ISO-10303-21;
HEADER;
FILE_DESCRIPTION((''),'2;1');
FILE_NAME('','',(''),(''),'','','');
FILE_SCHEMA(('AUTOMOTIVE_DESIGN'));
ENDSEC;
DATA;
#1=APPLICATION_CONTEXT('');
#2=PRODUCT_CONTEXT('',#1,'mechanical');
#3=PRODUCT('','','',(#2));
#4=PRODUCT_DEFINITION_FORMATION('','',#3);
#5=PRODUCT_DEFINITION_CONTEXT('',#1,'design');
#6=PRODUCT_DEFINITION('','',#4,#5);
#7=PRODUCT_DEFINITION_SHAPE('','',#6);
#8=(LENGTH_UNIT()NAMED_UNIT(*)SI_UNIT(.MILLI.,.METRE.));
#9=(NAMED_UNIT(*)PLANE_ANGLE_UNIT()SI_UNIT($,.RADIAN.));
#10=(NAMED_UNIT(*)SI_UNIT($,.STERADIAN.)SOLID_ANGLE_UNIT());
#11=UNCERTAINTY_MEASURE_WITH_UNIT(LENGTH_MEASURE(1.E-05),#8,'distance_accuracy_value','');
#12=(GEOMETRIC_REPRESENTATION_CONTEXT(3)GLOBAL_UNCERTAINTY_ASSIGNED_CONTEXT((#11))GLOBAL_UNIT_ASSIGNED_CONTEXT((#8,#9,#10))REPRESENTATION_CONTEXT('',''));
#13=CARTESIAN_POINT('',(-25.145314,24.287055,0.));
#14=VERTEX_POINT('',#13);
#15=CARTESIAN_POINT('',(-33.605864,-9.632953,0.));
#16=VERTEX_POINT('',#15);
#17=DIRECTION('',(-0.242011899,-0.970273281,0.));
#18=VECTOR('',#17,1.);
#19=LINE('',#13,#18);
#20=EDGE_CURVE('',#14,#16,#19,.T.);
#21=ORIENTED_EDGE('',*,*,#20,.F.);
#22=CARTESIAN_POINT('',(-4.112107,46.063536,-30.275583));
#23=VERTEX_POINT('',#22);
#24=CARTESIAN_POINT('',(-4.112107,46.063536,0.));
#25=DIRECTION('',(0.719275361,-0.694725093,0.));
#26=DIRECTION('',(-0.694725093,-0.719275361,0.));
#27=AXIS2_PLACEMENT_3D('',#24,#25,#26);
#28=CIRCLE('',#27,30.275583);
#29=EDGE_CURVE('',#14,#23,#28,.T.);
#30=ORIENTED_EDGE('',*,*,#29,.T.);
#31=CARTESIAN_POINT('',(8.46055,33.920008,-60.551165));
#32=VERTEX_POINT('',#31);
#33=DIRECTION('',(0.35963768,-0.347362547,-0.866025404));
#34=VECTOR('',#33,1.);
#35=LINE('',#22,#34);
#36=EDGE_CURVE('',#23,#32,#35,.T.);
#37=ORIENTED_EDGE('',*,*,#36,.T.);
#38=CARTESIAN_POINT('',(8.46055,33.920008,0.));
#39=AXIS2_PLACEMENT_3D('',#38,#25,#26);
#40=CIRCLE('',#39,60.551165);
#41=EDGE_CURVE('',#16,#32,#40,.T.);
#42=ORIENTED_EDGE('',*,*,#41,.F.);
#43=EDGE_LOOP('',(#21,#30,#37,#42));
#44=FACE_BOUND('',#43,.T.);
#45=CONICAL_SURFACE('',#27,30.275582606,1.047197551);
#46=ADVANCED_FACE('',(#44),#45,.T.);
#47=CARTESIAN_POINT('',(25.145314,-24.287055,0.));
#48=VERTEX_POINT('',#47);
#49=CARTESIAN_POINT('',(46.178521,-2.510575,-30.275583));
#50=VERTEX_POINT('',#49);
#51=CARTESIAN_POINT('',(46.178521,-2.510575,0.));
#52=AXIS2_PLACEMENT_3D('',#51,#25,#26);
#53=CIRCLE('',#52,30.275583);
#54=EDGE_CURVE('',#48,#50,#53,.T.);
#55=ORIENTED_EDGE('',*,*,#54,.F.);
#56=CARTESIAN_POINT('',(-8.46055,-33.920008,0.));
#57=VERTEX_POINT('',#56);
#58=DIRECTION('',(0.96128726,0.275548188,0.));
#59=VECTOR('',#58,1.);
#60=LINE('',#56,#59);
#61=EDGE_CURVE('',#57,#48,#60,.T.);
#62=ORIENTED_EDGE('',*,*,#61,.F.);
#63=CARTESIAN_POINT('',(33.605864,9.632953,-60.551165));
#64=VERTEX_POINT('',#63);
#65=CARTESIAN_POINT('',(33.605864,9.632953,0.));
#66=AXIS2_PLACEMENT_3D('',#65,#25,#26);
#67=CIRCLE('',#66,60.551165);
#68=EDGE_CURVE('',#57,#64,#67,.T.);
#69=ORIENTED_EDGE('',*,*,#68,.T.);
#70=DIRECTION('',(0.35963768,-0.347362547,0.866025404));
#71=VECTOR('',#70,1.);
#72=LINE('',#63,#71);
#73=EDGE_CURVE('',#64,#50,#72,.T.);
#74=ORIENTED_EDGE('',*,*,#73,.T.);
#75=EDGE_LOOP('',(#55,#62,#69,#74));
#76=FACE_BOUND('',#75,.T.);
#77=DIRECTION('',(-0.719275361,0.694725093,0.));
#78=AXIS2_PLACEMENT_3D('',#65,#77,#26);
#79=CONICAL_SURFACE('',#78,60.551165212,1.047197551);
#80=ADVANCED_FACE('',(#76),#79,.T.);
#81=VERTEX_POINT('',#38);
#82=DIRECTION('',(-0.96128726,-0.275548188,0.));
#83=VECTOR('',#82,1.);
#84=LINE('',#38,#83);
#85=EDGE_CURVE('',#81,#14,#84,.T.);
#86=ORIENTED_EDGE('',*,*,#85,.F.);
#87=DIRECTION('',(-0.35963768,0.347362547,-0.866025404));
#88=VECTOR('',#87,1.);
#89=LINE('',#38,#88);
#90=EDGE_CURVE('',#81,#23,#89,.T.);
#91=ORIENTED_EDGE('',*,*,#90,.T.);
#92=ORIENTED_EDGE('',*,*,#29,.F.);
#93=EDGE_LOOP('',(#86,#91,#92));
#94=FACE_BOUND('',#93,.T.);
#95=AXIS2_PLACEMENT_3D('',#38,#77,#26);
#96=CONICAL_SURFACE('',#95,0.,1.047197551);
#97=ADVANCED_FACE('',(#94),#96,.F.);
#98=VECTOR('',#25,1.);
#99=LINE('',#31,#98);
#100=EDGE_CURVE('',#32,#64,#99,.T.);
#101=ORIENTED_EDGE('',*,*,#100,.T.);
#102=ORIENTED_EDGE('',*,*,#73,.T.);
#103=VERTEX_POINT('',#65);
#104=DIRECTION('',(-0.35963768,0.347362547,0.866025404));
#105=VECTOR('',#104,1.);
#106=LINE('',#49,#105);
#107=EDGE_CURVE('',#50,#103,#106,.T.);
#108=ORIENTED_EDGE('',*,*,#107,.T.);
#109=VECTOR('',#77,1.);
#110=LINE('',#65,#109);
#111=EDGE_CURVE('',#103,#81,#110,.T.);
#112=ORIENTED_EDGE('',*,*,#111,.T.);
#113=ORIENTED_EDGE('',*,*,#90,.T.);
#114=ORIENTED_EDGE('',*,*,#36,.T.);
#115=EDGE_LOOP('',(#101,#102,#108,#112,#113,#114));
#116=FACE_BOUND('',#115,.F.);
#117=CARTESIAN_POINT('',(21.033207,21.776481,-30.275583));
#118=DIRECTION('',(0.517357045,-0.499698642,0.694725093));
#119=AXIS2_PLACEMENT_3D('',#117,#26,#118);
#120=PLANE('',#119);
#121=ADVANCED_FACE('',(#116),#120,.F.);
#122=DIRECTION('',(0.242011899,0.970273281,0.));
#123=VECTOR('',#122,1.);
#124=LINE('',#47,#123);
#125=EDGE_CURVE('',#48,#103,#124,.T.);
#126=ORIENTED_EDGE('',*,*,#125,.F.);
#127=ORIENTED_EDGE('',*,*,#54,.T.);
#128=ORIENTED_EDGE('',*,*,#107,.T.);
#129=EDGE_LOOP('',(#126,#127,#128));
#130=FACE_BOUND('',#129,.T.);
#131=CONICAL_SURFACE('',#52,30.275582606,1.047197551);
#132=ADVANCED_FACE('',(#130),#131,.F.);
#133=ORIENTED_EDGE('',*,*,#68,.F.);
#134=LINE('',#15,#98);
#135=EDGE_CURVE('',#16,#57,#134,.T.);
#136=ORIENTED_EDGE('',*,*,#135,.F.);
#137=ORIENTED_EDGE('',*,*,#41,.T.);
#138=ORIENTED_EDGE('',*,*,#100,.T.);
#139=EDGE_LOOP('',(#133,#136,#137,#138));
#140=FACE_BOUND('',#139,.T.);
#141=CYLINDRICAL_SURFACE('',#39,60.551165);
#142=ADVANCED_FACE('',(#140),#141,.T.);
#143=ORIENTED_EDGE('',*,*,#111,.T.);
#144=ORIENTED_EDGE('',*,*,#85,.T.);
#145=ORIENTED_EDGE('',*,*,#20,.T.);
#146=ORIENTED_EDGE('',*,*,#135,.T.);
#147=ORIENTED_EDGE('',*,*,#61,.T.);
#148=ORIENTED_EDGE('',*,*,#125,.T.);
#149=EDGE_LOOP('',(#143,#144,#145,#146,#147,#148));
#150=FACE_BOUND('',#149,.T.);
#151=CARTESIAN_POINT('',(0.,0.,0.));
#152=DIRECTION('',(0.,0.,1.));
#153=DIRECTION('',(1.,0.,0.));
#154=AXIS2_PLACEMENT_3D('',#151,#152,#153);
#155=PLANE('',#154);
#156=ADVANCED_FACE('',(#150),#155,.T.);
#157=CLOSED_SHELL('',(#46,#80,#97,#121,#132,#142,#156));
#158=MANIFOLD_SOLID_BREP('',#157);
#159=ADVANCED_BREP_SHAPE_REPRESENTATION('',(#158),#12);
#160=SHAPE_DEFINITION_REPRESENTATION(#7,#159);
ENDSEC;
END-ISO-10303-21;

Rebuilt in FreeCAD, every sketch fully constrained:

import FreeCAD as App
import Part
import Sketcher
from FreeCAD import Vector

doc = App.newDocument("Part")
params = doc.addObject("Spreadsheet::Sheet", "Params")
for row, (alias, value) in enumerate([
    ("revolution_angle", "90 deg"),
], start=1):
    params.set(f"A{row}", alias)
    params.set(f"B{row}", "=" + value)
    params.setAlias(f"B{row}", alias)

body = doc.addObject("PartDesign::Body", "Body")

# Sketch on XY plane
sketch1 = doc.addObject("Sketcher::SketchObject", "Sketch")
body.addObject(sketch1)
sketch1.AttachmentSupport = (doc.XY_Plane, [""])
sketch1.MapMode = "FlatFace"
sketch1.addGeometry([
    Part.LineSegment(Vector(34, 10, 0), Vector(8, 34, 0)),  # 0
    Part.LineSegment(Vector(8, 34, 0), Vector(-25, 24, 0)),  # 1
    Part.LineSegment(Vector(-25, 24, 0), Vector(-34, -10, 0)),  # 2
    Part.LineSegment(Vector(-34, -10, 0), Vector(-8, -34, 0)),  # 3
    Part.LineSegment(Vector(-8, -34, 0), Vector(25, -24, 0)),  # 4
    Part.LineSegment(Vector(25, -24, 0), Vector(34, 10, 0)),  # 5
], False)
sketch1.addGeometry(Part.LineSegment(Vector(-4, 46, 0), Vector(46, -3, 0)), True)  # axis
sketch1.addConstraint([
    Sketcher.Constraint("Coincident", 0, 2, 1, 1),
    Sketcher.Constraint("Coincident", 1, 2, 2, 1),
    Sketcher.Constraint("Coincident", 2, 2, 3, 1),
    Sketcher.Constraint("Coincident", 3, 2, 4, 1),
    Sketcher.Constraint("Coincident", 4, 2, 5, 1),
    Sketcher.Constraint("Coincident", 5, 2, 0, 1),
    Sketcher.Constraint("Symmetric", 0, 2, 3, 2, -1, 1),
    Sketcher.Constraint("Symmetric", 1, 2, 4, 2, -1, 1),
    Sketcher.Constraint("Symmetric", 2, 2, 5, 2, -1, 1),
    Sketcher.Constraint("Parallel", 3, 6),
    Sketcher.Constraint("Equal", 0, 1),
    Sketcher.Constraint("Equal", 1, 2),
    Sketcher.Constraint("DistanceX", 3, 2, 0, 2, 16.9211),
    Sketcher.Constraint("Distance", 0, 34.959232),
    Sketcher.Constraint("DistanceY", -1, 1, 0, 2, 33.920008),
    Sketcher.Constraint("DistanceX", -1, 1, 6, 2, 46.178521),
    Sketcher.Constraint("DistanceX", 2, 2, 1, 2, 8.46055),
    Sketcher.Constraint("DistanceY", 1, 2, 6, 1, 21.776481),
    Sketcher.Constraint("DistanceX", 6, 1, 5, 2, 37.717971),
])
revolution = doc.addObject("PartDesign::Revolution", "Revolution")
body.addObject(revolution)
revolution.Profile = sketch1
revolution.ReferenceAxis = (sketch1, ["Axis0"])
revolution.setExpression("Angle", "Params.revolution_angle")

doc.recompute()
